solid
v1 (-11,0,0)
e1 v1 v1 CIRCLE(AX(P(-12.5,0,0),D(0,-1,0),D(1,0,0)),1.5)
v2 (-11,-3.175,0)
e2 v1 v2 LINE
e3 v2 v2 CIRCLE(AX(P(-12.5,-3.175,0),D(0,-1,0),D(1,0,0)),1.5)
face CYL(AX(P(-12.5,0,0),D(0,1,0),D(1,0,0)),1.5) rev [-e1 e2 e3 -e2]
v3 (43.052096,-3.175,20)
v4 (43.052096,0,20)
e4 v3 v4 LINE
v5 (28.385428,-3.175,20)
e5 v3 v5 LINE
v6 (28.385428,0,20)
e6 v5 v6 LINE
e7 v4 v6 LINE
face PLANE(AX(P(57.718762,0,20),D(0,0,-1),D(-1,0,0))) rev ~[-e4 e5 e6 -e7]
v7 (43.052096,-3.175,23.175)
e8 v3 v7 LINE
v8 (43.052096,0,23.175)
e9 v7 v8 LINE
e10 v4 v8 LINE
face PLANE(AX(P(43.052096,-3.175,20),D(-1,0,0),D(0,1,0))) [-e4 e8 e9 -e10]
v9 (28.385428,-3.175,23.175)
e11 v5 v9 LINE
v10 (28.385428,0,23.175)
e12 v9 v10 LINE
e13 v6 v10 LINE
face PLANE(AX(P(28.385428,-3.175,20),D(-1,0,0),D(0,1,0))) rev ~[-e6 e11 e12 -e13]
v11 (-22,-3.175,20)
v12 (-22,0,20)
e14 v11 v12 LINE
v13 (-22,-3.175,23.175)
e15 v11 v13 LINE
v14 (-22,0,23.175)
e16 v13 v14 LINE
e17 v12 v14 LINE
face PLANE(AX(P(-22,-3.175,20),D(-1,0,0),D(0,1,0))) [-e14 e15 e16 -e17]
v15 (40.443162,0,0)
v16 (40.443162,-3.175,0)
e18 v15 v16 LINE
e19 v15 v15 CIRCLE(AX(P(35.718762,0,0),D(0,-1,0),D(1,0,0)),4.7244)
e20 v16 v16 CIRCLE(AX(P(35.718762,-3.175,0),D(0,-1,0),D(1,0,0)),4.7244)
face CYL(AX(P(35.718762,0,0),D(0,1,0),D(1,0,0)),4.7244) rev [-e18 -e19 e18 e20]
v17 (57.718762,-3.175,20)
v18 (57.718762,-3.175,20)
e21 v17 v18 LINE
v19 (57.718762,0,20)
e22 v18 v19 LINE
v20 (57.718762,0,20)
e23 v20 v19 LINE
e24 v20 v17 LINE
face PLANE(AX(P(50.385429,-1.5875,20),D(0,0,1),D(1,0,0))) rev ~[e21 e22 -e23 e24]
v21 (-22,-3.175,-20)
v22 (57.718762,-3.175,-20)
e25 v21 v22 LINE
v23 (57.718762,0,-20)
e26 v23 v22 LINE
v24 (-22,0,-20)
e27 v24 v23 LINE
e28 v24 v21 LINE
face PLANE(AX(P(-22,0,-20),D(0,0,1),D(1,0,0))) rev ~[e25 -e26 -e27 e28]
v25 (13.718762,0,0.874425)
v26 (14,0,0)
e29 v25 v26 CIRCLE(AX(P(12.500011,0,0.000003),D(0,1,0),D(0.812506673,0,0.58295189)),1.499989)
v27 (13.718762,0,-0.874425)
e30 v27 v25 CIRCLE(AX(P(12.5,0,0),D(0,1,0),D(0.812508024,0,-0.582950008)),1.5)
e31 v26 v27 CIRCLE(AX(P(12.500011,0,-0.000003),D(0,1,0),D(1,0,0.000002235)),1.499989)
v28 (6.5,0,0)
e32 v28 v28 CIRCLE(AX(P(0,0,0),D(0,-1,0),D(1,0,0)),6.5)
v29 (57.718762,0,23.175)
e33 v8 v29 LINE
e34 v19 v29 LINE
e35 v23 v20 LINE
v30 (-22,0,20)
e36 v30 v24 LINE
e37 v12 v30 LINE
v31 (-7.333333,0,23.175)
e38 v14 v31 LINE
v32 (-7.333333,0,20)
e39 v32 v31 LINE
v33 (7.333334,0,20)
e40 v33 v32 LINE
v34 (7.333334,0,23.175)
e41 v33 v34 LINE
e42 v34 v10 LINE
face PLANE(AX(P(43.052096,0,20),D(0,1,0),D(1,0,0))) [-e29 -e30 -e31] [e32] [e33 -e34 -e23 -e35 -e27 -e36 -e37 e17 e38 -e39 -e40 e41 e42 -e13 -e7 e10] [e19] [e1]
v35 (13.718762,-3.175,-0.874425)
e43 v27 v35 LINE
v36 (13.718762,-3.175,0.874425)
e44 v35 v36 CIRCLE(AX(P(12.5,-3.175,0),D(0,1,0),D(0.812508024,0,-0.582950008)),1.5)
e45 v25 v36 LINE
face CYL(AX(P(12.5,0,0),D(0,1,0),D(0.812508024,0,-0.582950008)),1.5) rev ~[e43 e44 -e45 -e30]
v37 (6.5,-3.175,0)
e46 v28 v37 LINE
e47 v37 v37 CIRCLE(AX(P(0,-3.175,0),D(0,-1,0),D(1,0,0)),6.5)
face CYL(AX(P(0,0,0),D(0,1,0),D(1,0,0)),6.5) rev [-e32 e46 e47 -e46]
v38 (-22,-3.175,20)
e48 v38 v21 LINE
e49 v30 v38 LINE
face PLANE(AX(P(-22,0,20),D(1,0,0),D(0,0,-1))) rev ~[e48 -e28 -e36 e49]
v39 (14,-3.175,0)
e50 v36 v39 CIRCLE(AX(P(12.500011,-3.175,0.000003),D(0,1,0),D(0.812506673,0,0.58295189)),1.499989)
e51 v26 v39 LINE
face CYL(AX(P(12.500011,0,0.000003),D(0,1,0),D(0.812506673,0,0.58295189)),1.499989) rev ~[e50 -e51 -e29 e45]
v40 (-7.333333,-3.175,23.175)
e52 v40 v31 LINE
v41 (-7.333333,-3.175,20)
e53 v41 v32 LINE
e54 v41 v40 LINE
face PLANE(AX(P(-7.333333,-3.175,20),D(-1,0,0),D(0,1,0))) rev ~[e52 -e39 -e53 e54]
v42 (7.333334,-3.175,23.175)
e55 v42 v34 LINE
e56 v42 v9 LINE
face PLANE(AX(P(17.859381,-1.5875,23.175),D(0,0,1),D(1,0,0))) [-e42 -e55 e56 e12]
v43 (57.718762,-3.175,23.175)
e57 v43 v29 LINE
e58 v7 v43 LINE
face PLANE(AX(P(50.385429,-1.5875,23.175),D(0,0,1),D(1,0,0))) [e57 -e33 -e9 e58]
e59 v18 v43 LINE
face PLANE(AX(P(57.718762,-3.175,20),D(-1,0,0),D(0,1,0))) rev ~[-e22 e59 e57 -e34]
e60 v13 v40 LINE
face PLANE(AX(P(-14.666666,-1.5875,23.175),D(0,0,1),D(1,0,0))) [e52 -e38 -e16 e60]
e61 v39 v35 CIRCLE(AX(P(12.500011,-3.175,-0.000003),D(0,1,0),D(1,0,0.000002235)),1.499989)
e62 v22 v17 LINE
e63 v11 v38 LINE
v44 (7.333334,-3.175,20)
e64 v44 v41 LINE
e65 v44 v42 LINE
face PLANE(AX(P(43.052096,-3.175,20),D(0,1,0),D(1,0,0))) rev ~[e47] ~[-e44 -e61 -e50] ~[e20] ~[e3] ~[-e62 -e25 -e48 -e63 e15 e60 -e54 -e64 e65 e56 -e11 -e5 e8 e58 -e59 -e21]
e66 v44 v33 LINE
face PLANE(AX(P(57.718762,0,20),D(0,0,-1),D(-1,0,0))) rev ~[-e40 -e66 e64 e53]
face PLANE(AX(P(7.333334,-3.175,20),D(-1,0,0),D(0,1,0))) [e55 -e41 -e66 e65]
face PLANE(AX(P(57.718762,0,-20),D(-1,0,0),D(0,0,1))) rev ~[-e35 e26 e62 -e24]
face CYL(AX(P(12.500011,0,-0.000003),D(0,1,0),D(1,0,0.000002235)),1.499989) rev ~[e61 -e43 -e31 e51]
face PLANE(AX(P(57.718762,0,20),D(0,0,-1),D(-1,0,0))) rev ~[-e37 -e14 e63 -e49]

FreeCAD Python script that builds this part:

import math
import FreeCAD as App
import Part
import Sketcher
Q = App.Units.Quantity


def add_polygon(sketch, points):
    """Adds a closed chain of lines whose ends are joined by coincident constraints."""
    first, n = sketch.GeometryCount, len(points)
    for a, b in zip(points, points[1:] + points[:1]):
        sketch.addGeometry(Part.LineSegment(App.Vector(*a, 0), App.Vector(*b, 0)), False)
    for i in range(n):
        sketch.addConstraint(Sketcher.Constraint("Coincident", first + i, 2, first + (i + 1) % n, 1))

doc = App.newDocument("Part")
body = doc.addObject("PartDesign::Body", "Body")

# Sketch on XZ plane
sketch1 = body.newObject("Sketcher::SketchObject", "Sketch")
sketch1.AttachmentSupport = (doc.getObject("XZ_Plane"), [""])
sketch1.MapMode = "FlatFace"
add_polygon(sketch1, [(-22, -20), (57.7, -20), (57.7, 20), (-22, 20)])  # lines 0-3
sketch1.addGeometry(Part.Circle(App.Vector(-12.5, 0, 0), App.Vector(0, 0, 1), 1.5), False)  # 4
sketch1.addGeometry(Part.Circle(App.Vector(0, 0, 0), App.Vector(0, 0, 1), 6.5), False)  # 5
sketch1.addGeometry(Part.ArcOfCircle(Part.Circle(App.Vector(12.5, 0, 0), App.Vector(0, 0, 1), 1.5), math.radians(0), math.radians(36)), False)  # 6
sketch1.addGeometry(Part.ArcOfCircle(Part.Circle(App.Vector(12.5, 0, 0), App.Vector(0, 0, 1), 1.5), math.radians(-36), math.radians(0)), False)  # 7
sketch1.addGeometry(Part.ArcOfCircle(Part.Circle(App.Vector(12.5, 0, 0), App.Vector(0, 0, 1), 1.5), math.radians(36), math.radians(324)), False)  # 8
sketch1.addGeometry(Part.Circle(App.Vector(35.7, 0, 0), App.Vector(0, 0, 1), 4.7), False)  # 9
sketch1.addConstraint(Sketcher.Constraint("Coincident", 6, 1, 7, 2))
sketch1.addConstraint(Sketcher.Constraint("Coincident", 7, 1, 8, 2))
sketch1.addConstraint(Sketcher.Constraint("Coincident", 8, 1, 6, 2))
sketch1.addConstraint(Sketcher.Constraint("Horizontal", 0))
sketch1.addConstraint(Sketcher.Constraint("Vertical", 1))
sketch1.addConstraint(Sketcher.Constraint("Horizontal", 2))
sketch1.addConstraint(Sketcher.Constraint("Vertical", 3))
sketch1.addConstraint(Sketcher.Constraint("Coincident", 5, 3, -1, 1))
sketch1.addConstraint(Sketcher.Constraint("Coincident", 7, 3, 6, 3))
sketch1.addConstraint(Sketcher.Constraint("Equal", 4, 8))
sketch1.addConstraint(Sketcher.Constraint("Symmetric", 4, 3, 8, 3, -1, 1))
sketch1.addConstraint(Sketcher.Constraint("Symmetric", 7, 1, 8, 1, -1))
sketch1.addConstraint(Sketcher.Constraint("PointOnObject", 9, 3, -1))
sketch1.addConstraint(Sketcher.Constraint("PointOnObject", 6, 1, -1))
sketch1.addConstraint(Sketcher.Constraint("Diameter", 4, Q("3 mm")))
sketch1.addConstraint(Sketcher.Constraint("Diameter", 5, Q("13 mm")))
sketch1.addConstraint(Sketcher.Constraint("DistanceY", 1, 1, 1, 2, Q("40 mm")))
sketch1.addConstraint(Sketcher.Constraint("DistanceY", 0, 2, -1, 1, Q("20 mm")))
sketch1.addConstraint(Sketcher.Constraint("DistanceX", 2, 2, -1, 1, Q("22 mm")))
sketch1.addConstraint(Sketcher.Constraint("DistanceX", -1, 1, 6, 1, Q("14 mm")))
sketch1.addConstraint(Sketcher.Constraint("DistanceX", 4, 3, 8, 3, Q("25 mm")))
sketch1.addConstraint(Sketcher.Constraint("DistanceX", 9, 3, 0, 2, Q("22 mm")))
sketch1.addConstraint(Sketcher.Constraint("Diameter", 9, Q("9.4488 mm")))
sketch1.addConstraint(Sketcher.Constraint("DistanceX", 0, 1, 0, 2, Q("79.718762 mm")))
sketch1.addConstraint(Sketcher.Constraint("DistanceX", -1, 1, 8, 1, Q("13.718762 mm")))
pad1 = body.newObject("PartDesign::Pad", "Pad")
pad1.Profile = sketch1
pad1.Length = 3.175

# Sketch on XY plane
sketch2 = body.newObject("Sketcher::SketchObject", "Sketch001")
sketch2.AttachmentSupport = (doc.getObject("XY_Plane"), [""])
sketch2.MapMode = "FlatFace"
sketch2.AttachmentOffset = App.Placement(App.Vector(0, 0, 20), App.Rotation())
add_polygon(sketch2, [(-22, 0), (-22, -3.2), (-7.3, -3.2), (-7.3, 0)])  # lines 0-3
add_polygon(sketch2, [(43.1, 0), (43.1, -3.2), (57.7, -3.2), (57.7, 0)])  # lines 4-7
add_polygon(sketch2, [(7.3, 0), (7.3, -3.2), (28.4, -3.2), (28.4, 0)])  # lines 8-11
sketch2.addConstraint(Sketcher.Constraint("Vertical", 0))
sketch2.addConstraint(Sketcher.Constraint("Horizontal", 1))
sketch2.addConstraint(Sketcher.Constraint("Vertical", 2))
sketch2.addConstraint(Sketcher.Constraint("Horizontal", 3))
sketch2.addConstraint(Sketcher.Constraint("Vertical", 4))
sketch2.addConstraint(Sketcher.Constraint("Horizontal", 5))
sketch2.addConstraint(Sketcher.Constraint("Vertical", 6))
sketch2.addConstraint(Sketcher.Constraint("Horizontal", 7))
sketch2.addConstraint(Sketcher.Constraint("Vertical", 8))
sketch2.addConstraint(Sketcher.Constraint("Horizontal", 9))
sketch2.addConstraint(Sketcher.Constraint("Vertical", 10))
sketch2.addConstraint(Sketcher.Constraint("Horizontal", 11))
sketch2.addConstraint(Sketcher.Constraint("Symmetric", 2, 2, 11, 2, -1, 1))
sketch2.addConstraint(Sketcher.Constraint("PointOnObject", 2, 2, -1))
sketch2.addConstraint(Sketcher.Constraint("PointOnObject", 6, 2, -1))
sketch2.addConstraint(Sketcher.Constraint("Horizontal", 1, 2, 4, 2))
sketch2.addConstraint(Sketcher.Constraint("Horizontal", 5, 2, 8, 2))
sketch2.addConstraint(Sketcher.Constraint("Equal", 3, 5))
sketch2.addConstraint(Sketcher.Constraint("DistanceX", 0, 2, -1, 1, Q("22 mm")))
sketch2.addConstraint(Sketcher.Constraint("DistanceY", 0, 2, 0, 1, Q("3.175 mm")))
sketch2.addConstraint(Sketcher.Constraint("DistanceX", 1, 1, 1, 2, Q("14.666667 mm")))
sketch2.addConstraint(Sketcher.Constraint("DistanceX", 9, 1, 9, 2, Q("21.052095 mm")))
sketch2.addConstraint(Sketcher.Constraint("DistanceX", 0, 2, 5, 2, Q("79.718762 mm")))
pad2 = body.newObject("PartDesign::Pad", "Pad001")
pad2.Profile = sketch2
pad2.Length = 3.175

doc.recompute()
